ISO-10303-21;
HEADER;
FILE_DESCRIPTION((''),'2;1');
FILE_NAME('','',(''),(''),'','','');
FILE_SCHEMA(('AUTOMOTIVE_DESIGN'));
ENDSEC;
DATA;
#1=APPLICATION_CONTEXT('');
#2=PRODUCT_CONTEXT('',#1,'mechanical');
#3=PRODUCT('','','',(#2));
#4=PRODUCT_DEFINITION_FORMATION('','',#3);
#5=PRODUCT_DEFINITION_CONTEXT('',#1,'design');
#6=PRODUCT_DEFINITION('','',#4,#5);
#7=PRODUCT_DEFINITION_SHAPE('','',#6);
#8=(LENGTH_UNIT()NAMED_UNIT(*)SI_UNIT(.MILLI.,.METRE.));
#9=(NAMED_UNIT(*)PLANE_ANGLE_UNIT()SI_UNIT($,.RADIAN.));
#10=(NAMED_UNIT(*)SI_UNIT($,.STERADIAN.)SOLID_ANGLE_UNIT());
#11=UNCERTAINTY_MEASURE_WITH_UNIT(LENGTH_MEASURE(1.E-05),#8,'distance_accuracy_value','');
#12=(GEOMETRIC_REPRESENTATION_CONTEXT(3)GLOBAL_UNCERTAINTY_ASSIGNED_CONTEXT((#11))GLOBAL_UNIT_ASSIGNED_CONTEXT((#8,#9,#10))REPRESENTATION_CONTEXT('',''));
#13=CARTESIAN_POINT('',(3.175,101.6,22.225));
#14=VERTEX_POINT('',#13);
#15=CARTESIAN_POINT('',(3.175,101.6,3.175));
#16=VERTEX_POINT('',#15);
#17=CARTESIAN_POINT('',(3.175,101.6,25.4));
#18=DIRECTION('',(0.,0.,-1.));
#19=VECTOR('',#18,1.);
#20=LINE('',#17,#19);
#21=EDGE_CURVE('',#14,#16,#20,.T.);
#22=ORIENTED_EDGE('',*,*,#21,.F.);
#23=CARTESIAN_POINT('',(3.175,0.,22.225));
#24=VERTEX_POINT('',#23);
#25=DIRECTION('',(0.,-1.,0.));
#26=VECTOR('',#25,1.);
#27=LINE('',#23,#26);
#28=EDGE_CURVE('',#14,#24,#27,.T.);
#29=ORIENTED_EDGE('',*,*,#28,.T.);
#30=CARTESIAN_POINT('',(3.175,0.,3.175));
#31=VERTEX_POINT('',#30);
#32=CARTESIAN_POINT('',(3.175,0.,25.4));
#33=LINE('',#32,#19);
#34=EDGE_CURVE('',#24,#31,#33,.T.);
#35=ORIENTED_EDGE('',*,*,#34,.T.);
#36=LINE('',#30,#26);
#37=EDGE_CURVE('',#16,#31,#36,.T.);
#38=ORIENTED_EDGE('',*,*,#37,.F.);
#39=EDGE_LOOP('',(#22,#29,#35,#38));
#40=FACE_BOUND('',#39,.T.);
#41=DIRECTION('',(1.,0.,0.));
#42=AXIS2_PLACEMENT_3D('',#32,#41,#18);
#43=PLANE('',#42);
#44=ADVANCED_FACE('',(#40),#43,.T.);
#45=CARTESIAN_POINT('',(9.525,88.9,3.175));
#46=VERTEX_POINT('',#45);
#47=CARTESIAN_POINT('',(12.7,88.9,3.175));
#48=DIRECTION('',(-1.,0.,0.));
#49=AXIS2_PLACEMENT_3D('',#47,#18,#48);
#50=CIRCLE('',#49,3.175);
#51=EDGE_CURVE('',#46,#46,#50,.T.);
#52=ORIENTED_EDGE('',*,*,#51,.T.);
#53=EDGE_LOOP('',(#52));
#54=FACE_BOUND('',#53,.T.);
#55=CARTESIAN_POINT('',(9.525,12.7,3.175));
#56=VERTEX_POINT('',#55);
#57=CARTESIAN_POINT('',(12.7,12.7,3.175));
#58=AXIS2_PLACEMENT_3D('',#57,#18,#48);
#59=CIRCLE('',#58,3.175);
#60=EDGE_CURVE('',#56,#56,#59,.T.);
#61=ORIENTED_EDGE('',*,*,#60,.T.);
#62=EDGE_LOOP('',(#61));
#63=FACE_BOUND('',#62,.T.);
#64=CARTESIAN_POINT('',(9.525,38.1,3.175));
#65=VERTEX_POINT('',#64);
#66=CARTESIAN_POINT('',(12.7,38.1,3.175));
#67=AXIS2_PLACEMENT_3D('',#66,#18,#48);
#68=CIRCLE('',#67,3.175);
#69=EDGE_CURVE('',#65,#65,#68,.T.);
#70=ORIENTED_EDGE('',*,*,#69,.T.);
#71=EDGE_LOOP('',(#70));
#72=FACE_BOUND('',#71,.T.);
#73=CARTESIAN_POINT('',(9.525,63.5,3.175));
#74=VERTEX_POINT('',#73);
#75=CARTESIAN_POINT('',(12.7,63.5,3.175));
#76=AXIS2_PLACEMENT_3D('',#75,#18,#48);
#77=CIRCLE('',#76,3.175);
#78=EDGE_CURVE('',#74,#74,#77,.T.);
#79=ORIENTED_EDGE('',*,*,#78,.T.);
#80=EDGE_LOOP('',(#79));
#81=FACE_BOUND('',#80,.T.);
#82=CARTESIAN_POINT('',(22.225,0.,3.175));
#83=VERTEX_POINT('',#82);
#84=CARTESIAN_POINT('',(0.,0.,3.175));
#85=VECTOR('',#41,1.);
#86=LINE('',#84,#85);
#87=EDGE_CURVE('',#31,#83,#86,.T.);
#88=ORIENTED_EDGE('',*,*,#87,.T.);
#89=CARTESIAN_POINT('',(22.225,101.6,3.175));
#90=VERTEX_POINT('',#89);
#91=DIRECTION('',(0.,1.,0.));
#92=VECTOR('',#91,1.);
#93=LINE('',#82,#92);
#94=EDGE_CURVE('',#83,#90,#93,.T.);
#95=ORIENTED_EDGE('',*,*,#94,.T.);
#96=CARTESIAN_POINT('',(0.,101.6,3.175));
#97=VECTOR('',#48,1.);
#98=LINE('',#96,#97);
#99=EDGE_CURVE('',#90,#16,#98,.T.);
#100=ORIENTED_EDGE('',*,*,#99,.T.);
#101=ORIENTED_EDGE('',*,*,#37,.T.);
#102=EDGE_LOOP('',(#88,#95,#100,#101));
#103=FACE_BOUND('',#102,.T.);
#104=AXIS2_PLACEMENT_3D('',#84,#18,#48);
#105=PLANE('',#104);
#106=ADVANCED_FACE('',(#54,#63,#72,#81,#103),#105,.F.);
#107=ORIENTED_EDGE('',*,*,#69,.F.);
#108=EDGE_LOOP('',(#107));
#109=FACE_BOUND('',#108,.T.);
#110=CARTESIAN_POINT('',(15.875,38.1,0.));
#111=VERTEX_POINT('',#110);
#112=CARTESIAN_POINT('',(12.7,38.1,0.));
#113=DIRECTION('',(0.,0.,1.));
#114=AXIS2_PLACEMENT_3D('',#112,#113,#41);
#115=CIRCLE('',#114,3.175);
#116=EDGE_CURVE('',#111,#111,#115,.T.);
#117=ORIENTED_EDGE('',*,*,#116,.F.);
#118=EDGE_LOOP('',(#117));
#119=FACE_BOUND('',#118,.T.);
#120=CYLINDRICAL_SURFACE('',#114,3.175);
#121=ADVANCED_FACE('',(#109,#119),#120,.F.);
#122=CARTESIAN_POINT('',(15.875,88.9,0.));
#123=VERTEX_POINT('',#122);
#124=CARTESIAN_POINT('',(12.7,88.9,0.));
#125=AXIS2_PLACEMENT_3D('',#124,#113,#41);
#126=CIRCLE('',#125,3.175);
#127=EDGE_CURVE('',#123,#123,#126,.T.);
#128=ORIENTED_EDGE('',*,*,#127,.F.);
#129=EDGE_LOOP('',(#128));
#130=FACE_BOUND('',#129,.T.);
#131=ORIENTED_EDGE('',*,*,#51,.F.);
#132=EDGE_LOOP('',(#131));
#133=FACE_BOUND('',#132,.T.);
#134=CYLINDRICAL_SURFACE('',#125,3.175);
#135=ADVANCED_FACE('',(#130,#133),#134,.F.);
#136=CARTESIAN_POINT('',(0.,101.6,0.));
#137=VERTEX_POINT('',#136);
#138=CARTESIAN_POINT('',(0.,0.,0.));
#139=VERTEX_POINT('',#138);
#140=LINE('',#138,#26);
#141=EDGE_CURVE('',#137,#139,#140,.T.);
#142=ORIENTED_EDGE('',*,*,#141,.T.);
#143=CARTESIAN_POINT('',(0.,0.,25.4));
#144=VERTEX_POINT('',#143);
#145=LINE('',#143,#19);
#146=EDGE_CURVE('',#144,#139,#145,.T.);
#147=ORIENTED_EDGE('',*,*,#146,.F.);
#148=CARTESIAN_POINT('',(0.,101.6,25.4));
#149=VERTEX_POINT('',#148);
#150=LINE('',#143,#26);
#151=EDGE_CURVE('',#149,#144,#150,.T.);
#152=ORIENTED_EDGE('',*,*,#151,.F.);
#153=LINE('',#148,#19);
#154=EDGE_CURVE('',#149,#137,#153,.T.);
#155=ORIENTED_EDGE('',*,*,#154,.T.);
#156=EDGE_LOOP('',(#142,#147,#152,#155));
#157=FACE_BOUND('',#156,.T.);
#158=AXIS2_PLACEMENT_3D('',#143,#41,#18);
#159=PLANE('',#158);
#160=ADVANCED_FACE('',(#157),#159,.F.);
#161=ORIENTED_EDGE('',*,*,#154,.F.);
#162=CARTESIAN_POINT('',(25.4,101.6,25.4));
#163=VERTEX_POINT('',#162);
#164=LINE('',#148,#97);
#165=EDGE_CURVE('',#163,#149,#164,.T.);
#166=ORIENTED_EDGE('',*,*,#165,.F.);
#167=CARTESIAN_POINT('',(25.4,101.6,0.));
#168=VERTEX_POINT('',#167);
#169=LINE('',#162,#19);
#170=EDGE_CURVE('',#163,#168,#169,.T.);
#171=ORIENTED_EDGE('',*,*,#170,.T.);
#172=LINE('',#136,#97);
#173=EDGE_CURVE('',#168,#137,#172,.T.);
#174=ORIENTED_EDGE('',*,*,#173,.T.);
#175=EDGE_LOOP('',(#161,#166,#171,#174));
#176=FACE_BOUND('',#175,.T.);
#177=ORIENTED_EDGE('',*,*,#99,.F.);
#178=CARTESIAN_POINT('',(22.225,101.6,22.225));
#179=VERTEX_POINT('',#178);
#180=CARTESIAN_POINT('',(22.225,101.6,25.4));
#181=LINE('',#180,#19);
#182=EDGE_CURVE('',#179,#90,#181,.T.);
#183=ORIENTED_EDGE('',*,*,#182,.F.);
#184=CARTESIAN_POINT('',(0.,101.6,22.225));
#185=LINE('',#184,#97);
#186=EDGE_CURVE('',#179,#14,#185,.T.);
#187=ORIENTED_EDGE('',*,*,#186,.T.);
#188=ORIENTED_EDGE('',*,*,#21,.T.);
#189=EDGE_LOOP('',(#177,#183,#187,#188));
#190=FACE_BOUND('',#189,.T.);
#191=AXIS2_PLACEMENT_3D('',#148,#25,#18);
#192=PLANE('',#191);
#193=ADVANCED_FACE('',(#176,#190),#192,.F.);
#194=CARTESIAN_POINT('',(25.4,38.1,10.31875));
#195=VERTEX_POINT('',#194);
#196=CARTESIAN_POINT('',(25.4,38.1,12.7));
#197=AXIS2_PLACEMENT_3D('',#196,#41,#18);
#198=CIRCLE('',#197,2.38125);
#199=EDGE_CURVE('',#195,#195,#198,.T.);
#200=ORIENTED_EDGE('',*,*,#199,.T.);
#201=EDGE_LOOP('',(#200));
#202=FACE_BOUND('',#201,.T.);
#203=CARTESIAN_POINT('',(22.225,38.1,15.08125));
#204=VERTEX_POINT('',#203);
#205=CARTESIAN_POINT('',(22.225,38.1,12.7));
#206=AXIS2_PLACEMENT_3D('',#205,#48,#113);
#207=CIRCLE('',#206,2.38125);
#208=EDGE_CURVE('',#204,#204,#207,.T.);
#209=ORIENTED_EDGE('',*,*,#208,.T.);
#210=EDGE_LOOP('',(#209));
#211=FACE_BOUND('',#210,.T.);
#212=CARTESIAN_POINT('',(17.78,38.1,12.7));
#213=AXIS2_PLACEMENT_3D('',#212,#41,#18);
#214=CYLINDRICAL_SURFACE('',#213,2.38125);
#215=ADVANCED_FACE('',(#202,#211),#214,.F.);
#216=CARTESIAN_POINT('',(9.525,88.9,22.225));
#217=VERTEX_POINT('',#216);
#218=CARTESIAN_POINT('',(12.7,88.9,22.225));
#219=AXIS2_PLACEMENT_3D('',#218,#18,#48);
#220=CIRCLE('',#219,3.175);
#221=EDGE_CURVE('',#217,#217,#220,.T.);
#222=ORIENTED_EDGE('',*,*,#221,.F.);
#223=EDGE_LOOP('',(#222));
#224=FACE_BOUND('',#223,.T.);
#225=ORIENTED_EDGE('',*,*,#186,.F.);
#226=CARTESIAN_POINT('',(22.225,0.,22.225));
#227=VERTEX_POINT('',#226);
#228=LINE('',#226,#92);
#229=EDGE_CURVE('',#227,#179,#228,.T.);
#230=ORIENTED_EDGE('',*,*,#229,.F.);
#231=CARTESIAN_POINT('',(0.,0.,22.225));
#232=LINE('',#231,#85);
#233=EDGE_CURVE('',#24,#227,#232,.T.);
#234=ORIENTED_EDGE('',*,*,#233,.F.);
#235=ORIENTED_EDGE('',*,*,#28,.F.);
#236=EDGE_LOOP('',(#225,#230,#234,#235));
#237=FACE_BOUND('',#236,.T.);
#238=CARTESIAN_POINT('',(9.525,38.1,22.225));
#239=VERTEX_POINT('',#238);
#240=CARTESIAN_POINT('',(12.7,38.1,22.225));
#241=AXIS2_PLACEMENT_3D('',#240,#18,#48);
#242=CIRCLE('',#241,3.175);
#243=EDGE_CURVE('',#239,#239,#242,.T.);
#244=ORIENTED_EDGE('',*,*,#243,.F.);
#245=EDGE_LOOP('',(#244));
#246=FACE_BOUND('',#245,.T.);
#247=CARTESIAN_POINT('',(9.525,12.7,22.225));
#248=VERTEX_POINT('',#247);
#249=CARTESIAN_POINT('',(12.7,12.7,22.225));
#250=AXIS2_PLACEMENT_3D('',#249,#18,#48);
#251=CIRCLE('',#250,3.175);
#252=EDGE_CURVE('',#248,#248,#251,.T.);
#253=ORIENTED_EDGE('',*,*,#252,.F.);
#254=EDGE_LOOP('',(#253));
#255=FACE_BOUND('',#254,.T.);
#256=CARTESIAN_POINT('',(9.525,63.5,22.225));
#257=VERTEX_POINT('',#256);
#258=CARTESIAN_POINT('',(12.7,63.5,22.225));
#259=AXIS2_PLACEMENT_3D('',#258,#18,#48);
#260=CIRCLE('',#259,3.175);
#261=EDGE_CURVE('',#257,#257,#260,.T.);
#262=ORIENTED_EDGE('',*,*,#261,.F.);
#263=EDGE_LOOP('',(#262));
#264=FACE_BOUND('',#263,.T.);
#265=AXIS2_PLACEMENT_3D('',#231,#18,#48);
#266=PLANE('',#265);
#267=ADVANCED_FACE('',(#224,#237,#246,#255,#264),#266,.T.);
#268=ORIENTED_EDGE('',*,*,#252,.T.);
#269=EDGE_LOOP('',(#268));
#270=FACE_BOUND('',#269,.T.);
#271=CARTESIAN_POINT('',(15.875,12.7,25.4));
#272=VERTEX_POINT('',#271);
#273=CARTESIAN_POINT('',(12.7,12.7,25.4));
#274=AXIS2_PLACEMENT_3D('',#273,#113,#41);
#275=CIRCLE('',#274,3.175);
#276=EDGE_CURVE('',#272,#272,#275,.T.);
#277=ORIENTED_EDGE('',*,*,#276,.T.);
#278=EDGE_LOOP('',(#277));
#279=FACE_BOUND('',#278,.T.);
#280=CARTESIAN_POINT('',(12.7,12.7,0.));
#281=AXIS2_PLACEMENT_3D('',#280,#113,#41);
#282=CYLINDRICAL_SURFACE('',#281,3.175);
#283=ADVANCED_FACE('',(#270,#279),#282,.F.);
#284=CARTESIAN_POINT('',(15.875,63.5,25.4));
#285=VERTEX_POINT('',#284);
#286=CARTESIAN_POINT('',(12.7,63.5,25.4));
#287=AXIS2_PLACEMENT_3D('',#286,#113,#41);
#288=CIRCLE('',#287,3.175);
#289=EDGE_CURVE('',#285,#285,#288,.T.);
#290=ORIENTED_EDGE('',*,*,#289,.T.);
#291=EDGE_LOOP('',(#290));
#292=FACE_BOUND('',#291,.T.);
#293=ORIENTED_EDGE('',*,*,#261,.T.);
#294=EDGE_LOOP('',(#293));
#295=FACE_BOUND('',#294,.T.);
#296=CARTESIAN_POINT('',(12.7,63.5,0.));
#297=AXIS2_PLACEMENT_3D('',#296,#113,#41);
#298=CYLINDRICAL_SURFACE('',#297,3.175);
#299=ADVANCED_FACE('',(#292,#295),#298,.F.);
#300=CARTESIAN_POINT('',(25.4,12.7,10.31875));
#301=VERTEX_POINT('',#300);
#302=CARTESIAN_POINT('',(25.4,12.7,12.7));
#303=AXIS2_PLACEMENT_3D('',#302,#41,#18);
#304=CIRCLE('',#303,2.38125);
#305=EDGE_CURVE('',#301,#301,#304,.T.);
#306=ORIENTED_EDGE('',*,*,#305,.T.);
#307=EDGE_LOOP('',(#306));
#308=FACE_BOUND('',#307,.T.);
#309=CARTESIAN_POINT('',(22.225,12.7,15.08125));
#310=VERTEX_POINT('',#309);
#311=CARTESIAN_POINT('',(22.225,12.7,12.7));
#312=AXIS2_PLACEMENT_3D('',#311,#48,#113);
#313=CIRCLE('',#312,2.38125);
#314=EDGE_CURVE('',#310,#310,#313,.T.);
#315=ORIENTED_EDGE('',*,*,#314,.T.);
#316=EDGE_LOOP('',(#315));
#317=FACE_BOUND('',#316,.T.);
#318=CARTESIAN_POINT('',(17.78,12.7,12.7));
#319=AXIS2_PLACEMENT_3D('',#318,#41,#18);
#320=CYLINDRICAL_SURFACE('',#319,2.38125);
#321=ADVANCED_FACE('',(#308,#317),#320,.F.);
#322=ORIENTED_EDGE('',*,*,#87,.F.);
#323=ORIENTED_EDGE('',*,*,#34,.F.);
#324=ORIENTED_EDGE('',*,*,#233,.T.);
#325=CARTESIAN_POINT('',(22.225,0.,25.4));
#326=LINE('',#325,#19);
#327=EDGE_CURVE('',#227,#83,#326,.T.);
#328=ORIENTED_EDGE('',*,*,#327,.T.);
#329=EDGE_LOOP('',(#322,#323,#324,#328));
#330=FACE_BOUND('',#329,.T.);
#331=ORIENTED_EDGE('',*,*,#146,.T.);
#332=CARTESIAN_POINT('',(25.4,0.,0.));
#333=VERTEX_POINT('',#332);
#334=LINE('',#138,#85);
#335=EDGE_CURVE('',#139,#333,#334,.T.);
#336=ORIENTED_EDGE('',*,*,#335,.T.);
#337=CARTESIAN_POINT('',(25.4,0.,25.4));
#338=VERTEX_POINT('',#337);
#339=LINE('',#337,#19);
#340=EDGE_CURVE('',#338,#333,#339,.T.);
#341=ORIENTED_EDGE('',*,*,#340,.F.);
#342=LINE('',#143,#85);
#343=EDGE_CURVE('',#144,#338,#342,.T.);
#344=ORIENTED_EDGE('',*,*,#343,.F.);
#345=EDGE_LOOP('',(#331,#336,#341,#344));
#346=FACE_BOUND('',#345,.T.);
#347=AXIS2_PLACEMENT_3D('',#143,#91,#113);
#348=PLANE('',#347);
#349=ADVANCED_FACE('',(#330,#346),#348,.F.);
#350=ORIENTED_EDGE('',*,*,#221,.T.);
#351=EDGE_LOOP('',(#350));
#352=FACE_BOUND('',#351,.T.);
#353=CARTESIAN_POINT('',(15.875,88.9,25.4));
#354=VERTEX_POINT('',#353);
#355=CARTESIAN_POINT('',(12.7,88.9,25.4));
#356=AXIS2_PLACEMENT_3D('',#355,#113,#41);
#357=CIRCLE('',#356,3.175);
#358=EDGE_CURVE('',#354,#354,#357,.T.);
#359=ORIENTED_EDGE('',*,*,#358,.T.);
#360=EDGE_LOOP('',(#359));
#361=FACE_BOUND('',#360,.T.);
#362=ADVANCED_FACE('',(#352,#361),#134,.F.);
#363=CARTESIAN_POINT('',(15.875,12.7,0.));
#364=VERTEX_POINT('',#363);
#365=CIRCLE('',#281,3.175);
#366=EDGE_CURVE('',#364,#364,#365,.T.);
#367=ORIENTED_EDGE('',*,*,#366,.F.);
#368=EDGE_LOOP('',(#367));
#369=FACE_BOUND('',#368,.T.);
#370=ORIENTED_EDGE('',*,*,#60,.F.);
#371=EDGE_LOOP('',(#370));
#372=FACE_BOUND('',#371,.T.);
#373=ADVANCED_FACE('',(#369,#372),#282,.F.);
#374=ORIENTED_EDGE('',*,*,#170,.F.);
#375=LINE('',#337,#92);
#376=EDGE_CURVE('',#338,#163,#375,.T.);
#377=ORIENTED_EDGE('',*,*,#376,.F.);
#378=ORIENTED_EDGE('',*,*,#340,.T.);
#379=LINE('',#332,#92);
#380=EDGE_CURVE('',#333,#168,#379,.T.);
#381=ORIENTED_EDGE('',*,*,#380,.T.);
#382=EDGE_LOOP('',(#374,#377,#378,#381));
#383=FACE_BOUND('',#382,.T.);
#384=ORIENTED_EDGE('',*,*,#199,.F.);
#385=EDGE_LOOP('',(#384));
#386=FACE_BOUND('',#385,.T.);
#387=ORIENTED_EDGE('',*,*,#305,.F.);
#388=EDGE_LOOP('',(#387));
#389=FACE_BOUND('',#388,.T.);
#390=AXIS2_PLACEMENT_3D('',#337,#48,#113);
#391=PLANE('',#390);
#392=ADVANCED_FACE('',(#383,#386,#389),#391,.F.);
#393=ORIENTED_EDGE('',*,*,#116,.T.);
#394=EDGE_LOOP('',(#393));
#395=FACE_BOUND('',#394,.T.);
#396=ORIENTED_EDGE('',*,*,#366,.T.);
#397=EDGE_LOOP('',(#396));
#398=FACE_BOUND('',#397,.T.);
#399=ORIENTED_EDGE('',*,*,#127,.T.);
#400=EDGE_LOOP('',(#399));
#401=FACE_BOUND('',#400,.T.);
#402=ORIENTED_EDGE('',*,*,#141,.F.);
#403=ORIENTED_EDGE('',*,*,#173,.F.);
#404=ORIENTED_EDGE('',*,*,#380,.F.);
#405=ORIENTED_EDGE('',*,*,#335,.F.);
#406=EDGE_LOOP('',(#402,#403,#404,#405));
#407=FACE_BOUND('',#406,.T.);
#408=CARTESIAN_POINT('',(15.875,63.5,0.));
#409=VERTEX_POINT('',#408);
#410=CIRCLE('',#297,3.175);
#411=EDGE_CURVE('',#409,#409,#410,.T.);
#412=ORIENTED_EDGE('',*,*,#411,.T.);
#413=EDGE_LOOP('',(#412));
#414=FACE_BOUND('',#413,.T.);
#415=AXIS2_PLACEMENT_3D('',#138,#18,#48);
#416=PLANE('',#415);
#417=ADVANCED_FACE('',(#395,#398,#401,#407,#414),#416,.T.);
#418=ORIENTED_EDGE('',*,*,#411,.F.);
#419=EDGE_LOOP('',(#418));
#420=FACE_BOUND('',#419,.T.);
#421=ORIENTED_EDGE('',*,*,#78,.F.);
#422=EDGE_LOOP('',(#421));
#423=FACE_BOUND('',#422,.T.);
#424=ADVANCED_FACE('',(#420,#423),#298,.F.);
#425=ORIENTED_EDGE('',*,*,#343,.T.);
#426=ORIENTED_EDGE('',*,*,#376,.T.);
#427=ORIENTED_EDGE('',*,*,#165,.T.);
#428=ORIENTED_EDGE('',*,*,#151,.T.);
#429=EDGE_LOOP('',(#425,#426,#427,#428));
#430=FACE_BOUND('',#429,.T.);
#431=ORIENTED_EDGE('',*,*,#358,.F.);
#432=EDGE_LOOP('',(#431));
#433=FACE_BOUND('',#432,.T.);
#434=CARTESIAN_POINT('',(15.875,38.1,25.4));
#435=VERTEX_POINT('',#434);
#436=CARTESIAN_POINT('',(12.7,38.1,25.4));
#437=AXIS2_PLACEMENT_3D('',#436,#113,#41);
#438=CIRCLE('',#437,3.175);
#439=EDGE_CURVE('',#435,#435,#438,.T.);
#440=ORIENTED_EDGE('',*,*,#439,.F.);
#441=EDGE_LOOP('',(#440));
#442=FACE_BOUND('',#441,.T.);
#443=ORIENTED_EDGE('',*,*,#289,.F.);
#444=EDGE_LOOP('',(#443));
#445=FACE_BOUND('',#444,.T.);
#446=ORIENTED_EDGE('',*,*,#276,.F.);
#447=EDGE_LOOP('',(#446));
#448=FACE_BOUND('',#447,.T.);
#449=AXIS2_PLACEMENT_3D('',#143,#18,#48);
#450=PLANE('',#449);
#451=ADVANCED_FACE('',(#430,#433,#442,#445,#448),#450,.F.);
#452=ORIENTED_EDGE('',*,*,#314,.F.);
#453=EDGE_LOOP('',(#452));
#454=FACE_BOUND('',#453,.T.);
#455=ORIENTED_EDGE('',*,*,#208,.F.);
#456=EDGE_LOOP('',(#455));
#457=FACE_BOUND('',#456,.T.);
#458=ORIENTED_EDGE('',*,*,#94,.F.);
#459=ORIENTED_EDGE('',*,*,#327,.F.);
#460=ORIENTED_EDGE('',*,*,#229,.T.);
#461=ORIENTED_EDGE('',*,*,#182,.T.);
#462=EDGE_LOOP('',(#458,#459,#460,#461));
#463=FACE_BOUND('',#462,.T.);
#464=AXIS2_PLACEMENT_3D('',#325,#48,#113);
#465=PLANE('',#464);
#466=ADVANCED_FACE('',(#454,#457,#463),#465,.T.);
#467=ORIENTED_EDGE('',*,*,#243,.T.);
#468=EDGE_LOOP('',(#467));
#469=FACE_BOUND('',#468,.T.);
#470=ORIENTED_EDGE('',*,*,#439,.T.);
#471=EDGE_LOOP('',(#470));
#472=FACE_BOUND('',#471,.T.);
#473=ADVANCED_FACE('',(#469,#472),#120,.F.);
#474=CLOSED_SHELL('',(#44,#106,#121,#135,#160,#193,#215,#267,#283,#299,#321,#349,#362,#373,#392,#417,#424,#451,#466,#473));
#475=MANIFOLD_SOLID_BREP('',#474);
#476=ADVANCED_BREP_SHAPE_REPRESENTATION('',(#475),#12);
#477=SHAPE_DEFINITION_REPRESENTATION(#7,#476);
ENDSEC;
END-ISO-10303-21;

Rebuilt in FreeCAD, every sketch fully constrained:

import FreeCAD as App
import Part
import Sketcher
from FreeCAD import Vector
Q = App.Units.Quantity


def faces_at(feature, points):
    """Names of the faces that lie closest to the given points."""
    faces = feature.Shape.Faces
    near = lambda p: min(range(len(faces)), key=lambda i: faces[i].distToShape(Part.Vertex(*p))[0])
    return sorted({f"Face{near(p) + 1}" for p in points})


def add_polygon(sketch, points):
    """Adds a closed chain of lines whose ends are joined by coincident constraints."""
    first, n = sketch.GeometryCount, len(points)
    for a, b in zip(points, points[1:] + points[:1]):
        sketch.addGeometry(Part.LineSegment(App.Vector(*a, 0), App.Vector(*b, 0)), False)
    for i in range(n):
        sketch.addConstraint(Sketcher.Constraint("Coincident", first + i, 2, first + (i + 1) % n, 1))

doc = App.newDocument("Part")
params = doc.addObject("Spreadsheet::Sheet", "Params")
for row, (alias, value) in enumerate([
    ("sketch1_width", "1 in"),
    ("sketch1_height", "4 in"),
    ("pad1_length", "1 in"),
    ("thickness_wall", "0.125 in"),
    ("sketch2_diameter", "0.25 in"),
    ("sketch3_diameter", "0.1875 in"),
    ("pocket2_length", "0.3 in"),
], start=1):
    params.set(f"A{row}", alias)
    params.set(f"B{row}", "=" + value)
    params.setAlias(f"B{row}", alias)

body = doc.addObject("PartDesign::Body", "Body")

sketch1 = body.newObject("Sketcher::SketchObject", "Sketch")
sketch1.AttachmentSupport = (doc.getObject("XY_Plane"), [""])
sketch1.MapMode = "FlatFace"
add_polygon(sketch1, [(0, 102), (0, 0), (25, 0), (25, 102)])
sketch1.addConstraint(Sketcher.Constraint("Vertical", 0))
sketch1.addConstraint(Sketcher.Constraint("Horizontal", 1))
sketch1.addConstraint(Sketcher.Constraint("Vertical", 2))
sketch1.addConstraint(Sketcher.Constraint("Horizontal", 3))
sketch1.addConstraint(Sketcher.Constraint("Coincident", 0, 2, -1, 1))
sketch1.addConstraint(Sketcher.Constraint("DistanceX", 1, 1, 1, 2, Q("1 in")))
sketch1.addConstraint(Sketcher.Constraint("DistanceY", 0, 2, 0, 1, Q("4 in")))
sketch1.setExpression("Constraints[9]", "Params.sketch1_width")
sketch1.setExpression("Constraints[10]", "Params.sketch1_height")
pad1 = body.newObject("PartDesign::Pad", "Pad")
pad1.Profile = sketch1
pad1.setExpression("Length", "Params.pad1_length")
doc.recompute()

thickness = body.newObject("PartDesign::Thickness", "Thickness")
thickness.Base = (pad1, faces_at(pad1, [(12.7, 101.6, 12.7), (12.7, 0, 12.7)]))
thickness.setExpression("Value", "Params.thickness_wall")
thickness.Reversed = True
thickness.Join = "Intersection"

sketch2 = body.newObject("Sketcher::SketchObject", "Sketch001")
sketch2.AttachmentSupport = (doc.getObject("XY_Plane"), [""])
sketch2.MapMode = "FlatFace"
sketch2.AttachmentOffset = App.Placement(Vector(0, 0, 1 * 25.4), App.Rotation())
sketch2.addGeometry(Part.Circle(Vector(12.7, 12.7, 0), Vector(0, 0, 1), 3.2), False)
sketch2.addGeometry(Part.Circle(Vector(12.7, 38.1, 0), Vector(0, 0, 1), 3.2), False)
sketch2.addGeometry(Part.Circle(Vector(12.7, 88.9, 0), Vector(0, 0, 1), 3.2), False)
sketch2.addGeometry(Part.Circle(Vector(12.7, 63.5, 0), Vector(0, 0, 1), 3.2), False)
sketch2.addConstraint(Sketcher.Constraint("Equal", 0, 1))
sketch2.addConstraint(Sketcher.Constraint("Equal", 1, 2))
sketch2.addConstraint(Sketcher.Constraint("Equal", 2, 3))
sketch2.addConstraint(Sketcher.Constraint("Vertical", 0, 3, 1, 3))
sketch2.addConstraint(Sketcher.Constraint("Vertical", 1, 3, 2, 3))
sketch2.addConstraint(Sketcher.Constraint("Vertical", 2, 3, 3, 3))
sketch2.addConstraint(Sketcher.Constraint("Diameter", 0, Q("0.25 in")))
sketch2.addConstraint(Sketcher.Constraint("DistanceY", 0, 3, 1, 3, Q("1 in")))
sketch2.addConstraint(Sketcher.Constraint("DistanceY", 1, 3, 2, 3, Q("2 in")))
sketch2.addConstraint(Sketcher.Constraint("DistanceY", 1, 3, 3, 3, Q("1 in")))
sketch2.addConstraint(Sketcher.Constraint("DistanceX", -1, 1, 0, 3, Q("0.5 in")))
sketch2.addConstraint(Sketcher.Constraint("DistanceY", -1, 1, 0, 3, Q("0.5 in")))
sketch2.setExpression("Constraints[6]", "Params.sketch2_diameter")
pocket1 = body.newObject("PartDesign::Pocket", "Pocket")
pocket1.Profile = sketch2
pocket1.Type = "ThroughAll"

sketch3 = body.newObject("Sketcher::SketchObject", "Sketch002")
sketch3.AttachmentSupport = (doc.getObject("YZ_Plane"), [""])
sketch3.MapMode = "FlatFace"
sketch3.AttachmentOffset = App.Placement(Vector(0, 0, 1 * 25.4), App.Rotation())
sketch3.addGeometry(Part.Circle(Vector(12.7, 12.7, 0), Vector(0, 0, 1), 2.4), False)
sketch3.addGeometry(Part.Circle(Vector(38.1, 12.7, 0), Vector(0, 0, 1), 2.4), False)
sketch3.addConstraint(Sketcher.Constraint("Equal", 0, 1))
sketch3.addConstraint(Sketcher.Constraint("Horizontal", 0, 3, 1, 3))
sketch3.addConstraint(Sketcher.Constraint("Diameter", 0, Q("0.1875 in")))
sketch3.addConstraint(Sketcher.Constraint("DistanceX", 0, 3, 1, 3, Q("1 in")))
sketch3.addConstraint(Sketcher.Constraint("DistanceX", -1, 1, 0, 3, Q("0.5 in")))
sketch3.addConstraint(Sketcher.Constraint("DistanceY", -1, 1, 0, 3, Q("0.5 in")))
sketch3.setExpression("Constraints[2]", "Params.sketch3_diameter")
pocket2 = body.newObject("PartDesign::Pocket", "Pocket001")
pocket2.Profile = sketch3
pocket2.setExpression("Length", "Params.pocket2_length")

doc.recompute()
